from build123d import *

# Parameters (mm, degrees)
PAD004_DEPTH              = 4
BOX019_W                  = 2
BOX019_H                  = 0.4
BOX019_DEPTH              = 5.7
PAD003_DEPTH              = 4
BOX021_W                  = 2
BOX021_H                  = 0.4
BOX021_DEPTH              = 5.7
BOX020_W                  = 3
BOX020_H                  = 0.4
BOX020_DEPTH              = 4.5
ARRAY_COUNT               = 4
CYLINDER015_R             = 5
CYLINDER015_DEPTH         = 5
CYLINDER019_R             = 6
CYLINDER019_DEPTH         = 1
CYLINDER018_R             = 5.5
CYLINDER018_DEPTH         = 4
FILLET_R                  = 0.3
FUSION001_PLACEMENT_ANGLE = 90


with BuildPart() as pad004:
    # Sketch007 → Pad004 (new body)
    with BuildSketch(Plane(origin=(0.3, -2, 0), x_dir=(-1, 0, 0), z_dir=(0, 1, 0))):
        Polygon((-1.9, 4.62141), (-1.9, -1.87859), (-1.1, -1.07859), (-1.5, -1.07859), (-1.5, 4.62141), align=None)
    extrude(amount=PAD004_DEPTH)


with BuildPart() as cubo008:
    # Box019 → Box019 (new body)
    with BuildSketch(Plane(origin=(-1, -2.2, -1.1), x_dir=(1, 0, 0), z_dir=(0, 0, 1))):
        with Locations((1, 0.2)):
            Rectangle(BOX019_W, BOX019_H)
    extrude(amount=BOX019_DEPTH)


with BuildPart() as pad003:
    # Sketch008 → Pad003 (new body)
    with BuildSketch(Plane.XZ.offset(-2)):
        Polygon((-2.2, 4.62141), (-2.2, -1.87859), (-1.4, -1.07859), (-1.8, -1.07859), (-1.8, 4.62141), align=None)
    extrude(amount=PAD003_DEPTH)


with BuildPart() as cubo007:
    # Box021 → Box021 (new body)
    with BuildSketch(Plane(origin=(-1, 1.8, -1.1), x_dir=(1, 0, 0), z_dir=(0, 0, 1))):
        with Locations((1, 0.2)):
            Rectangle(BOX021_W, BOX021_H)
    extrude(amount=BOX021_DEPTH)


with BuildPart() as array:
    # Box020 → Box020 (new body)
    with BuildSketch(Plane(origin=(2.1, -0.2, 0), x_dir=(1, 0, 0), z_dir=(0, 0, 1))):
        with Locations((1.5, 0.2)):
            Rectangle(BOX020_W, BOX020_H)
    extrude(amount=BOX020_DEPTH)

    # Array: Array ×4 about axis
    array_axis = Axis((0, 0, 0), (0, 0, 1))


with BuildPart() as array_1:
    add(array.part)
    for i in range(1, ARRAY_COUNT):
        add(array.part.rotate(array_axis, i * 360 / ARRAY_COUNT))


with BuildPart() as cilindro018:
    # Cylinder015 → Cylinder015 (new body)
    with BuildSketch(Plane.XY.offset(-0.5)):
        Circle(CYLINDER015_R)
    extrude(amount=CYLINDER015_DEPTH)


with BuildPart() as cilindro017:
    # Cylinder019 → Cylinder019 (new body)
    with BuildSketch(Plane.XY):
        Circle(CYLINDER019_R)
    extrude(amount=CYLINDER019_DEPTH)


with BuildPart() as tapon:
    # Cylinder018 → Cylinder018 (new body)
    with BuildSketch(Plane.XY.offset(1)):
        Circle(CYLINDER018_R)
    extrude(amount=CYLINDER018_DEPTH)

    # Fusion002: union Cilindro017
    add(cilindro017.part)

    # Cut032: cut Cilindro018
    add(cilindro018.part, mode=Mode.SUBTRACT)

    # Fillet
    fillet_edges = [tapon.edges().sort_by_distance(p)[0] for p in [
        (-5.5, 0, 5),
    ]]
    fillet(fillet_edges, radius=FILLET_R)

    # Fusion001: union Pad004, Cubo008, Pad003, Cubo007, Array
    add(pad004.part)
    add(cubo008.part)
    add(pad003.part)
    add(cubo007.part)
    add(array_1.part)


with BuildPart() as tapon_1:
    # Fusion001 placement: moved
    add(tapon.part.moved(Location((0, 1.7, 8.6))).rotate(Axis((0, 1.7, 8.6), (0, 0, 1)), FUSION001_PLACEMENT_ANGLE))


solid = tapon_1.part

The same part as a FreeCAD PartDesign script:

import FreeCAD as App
import Part
import Sketcher
Q = App.Units.Quantity


def edges_at(feature, points):
    """Names of the edges that pass closest to the given points."""
    edges = feature.Shape.Edges
    near = lambda p: min(range(len(edges)), key=lambda i: edges[i].distToShape(Part.Vertex(*p))[0])
    return sorted({f"Edge{near(p) + 1}" for p in points})

doc = App.newDocument("Part")
body = doc.addObject("PartDesign::Body", "Body")

# Sketch on XZ plane
sketch1 = body.newObject("Sketcher::SketchObject", "Sketch")
sketch1.AttachmentSupport = (doc.getObject("XZ_Plane"), [""])
sketch1.MapMode = "FlatFace"
sketch1.AttachmentOffset = App.Placement(App.Vector(0, 0, 2), App.Rotation())
sketch1.addGeometry(Part.LineSegment(App.Vector(2.2, 4.62141, 0), App.Vector(2.2, -1.87859, 0)), False)
sketch1.addGeometry(Part.LineSegment(App.Vector(2.2, -1.87859, 0), App.Vector(1.4, -1.07859, 0)), False)
sketch1.addGeometry(Part.LineSegment(App.Vector(1.4, -1.07859, 0), App.Vector(1.8, -1.07859, 0)), False)
sketch1.addGeometry(Part.LineSegment(App.Vector(1.8, -1.07859, 0), App.Vector(1.8, 4.62141, 0)), False)
sketch1.addGeometry(Part.LineSegment(App.Vector(1.8, 4.62141, 0), App.Vector(2.2, 4.62141, 0)), False)
sketch1.addConstraint(Sketcher.Constraint("Coincident", 0, 2, 1, 1))
sketch1.addConstraint(Sketcher.Constraint("Coincident", 1, 2, 2, 1))
sketch1.addConstraint(Sketcher.Constraint("Coincident", 2, 2, 3, 1))
sketch1.addConstraint(Sketcher.Constraint("Coincident", 3, 2, 4, 1))
sketch1.addConstraint(Sketcher.Constraint("Coincident", 4, 2, 0, 1))
sketch1.addConstraint(Sketcher.Constraint("Vertical", 0))
sketch1.addConstraint(Sketcher.Constraint("Horizontal", 2))
sketch1.addConstraint(Sketcher.Constraint("Vertical", 3))
sketch1.addConstraint(Sketcher.Constraint("Horizontal", 4))
sketch1.addConstraint(Sketcher.Constraint("Equal", 2, 4))
sketch1.addConstraint(Sketcher.Constraint("Angle", 1, Q("135 deg")))
sketch1.addConstraint(Sketcher.Constraint("DistanceX", 2, 1, 2, 2, 0.4))
sketch1.addConstraint(Sketcher.Constraint("DistanceY", 0, 2, 0, 1, 6.5))
sketch1.addConstraint(Sketcher.Constraint("DistanceX", -1, 1, 0, 2, 2.2))
sketch1.addConstraint(Sketcher.Constraint("DistanceY", 0, 2, -1, 1, 1.87859))
pad1 = body.newObject("PartDesign::Pad", "Pad")
pad1.Profile = sketch1
pad1.Length = 4
pad1.Reversed = True
body2 = doc.addObject("PartDesign::Body", "Body001")

# Sketch on XY plane
sketch2 = body2.newObject("Sketcher::SketchObject", "Sketch001")
sketch2.AttachmentSupport = (doc.getObject("XY_Plane001"), [""])
sketch2.MapMode = "FlatFace"
sketch2.AttachmentOffset = App.Placement(App.Vector(0, 0, -1.1), App.Rotation())
sketch2.addGeometry(Part.LineSegment(App.Vector(-1, -1.8, 0), App.Vector(-1, -2.2, 0)), False)
sketch2.addGeometry(Part.LineSegment(App.Vector(-1, -2.2, 0), App.Vector(1, -2.2, 0)), False)
sketch2.addGeometry(Part.LineSegment(App.Vector(1, -2.2, 0), App.Vector(1, -1.8, 0)), False)
sketch2.addGeometry(Part.LineSegment(App.Vector(1, -1.8, 0), App.Vector(-1, -1.8, 0)), False)
sketch2.addConstraint(Sketcher.Constraint("Coincident", 0, 2, 1, 1))
sketch2.addConstraint(Sketcher.Constraint("Coincident", 1, 2, 2, 1))
sketch2.addConstraint(Sketcher.Constraint("Coincident", 2, 2, 3, 1))
sketch2.addConstraint(Sketcher.Constraint("Coincident", 3, 2, 0, 1))
sketch2.addConstraint(Sketcher.Constraint("Vertical", 0))
sketch2.addConstraint(Sketcher.Constraint("Horizontal", 1))
sketch2.addConstraint(Sketcher.Constraint("Vertical", 2))
sketch2.addConstraint(Sketcher.Constraint("Horizontal", 3))
sketch2.addConstraint(Sketcher.Constraint("DistanceX", 1, 1, 1, 2, 2.0))
sketch2.addConstraint(Sketcher.Constraint("DistanceY", 0, 2, 0, 1, 0.4))
sketch2.addConstraint(Sketcher.Constraint("DistanceX", 0, 2, -1, 1, 1.0))
sketch2.addConstraint(Sketcher.Constraint("DistanceY", 0, 2, -1, 1, 2.2))
pad2 = body2.newObject("PartDesign::Pad", "Pad001")
pad2.Profile = sketch2
pad2.Length = 5.7
body3 = doc.addObject("PartDesign::Body", "Body002")

# Sketch on XZ plane
sketch3 = body3.newObject("Sketcher::SketchObject", "Sketch002")
sketch3.AttachmentSupport = (doc.getObject("XZ_Plane002"), [""])
sketch3.MapMode = "FlatFace"
sketch3.AttachmentOffset = App.Placement(App.Vector(0, 0, -2), App.Rotation())
sketch3.addGeometry(Part.LineSegment(App.Vector(-2.2, 4.62141, 0), App.Vector(-2.2, -1.87859, 0)), False)
sketch3.addGeometry(Part.LineSegment(App.Vector(-2.2, -1.87859, 0), App.Vector(-1.4, -1.07859, 0)), False)
sketch3.addGeometry(Part.LineSegment(App.Vector(-1.4, -1.07859, 0), App.Vector(-1.8, -1.07859, 0)), False)
sketch3.addGeometry(Part.LineSegment(App.Vector(-1.8, -1.07859, 0), App.Vector(-1.8, 4.62141, 0)), False)
sketch3.addGeometry(Part.LineSegment(App.Vector(-1.8, 4.62141, 0), App.Vector(-2.2, 4.62141, 0)), False)
sketch3.addConstraint(Sketcher.Constraint("Coincident", 0, 2, 1, 1))
sketch3.addConstraint(Sketcher.Constraint("Coincident", 1, 2, 2, 1))
sketch3.addConstraint(Sketcher.Constraint("Coincident", 2, 2, 3, 1))
sketch3.addConstraint(Sketcher.Constraint("Coincident", 3, 2, 4, 1))
sketch3.addConstraint(Sketcher.Constraint("Coincident", 4, 2, 0, 1))
sketch3.addConstraint(Sketcher.Constraint("Vertical", 0))
sketch3.addConstraint(Sketcher.Constraint("Horizontal", 2))
sketch3.addConstraint(Sketcher.Constraint("Vertical", 3))
sketch3.addConstraint(Sketcher.Constraint("Horizontal", 4))
sketch3.addConstraint(Sketcher.Constraint("Equal", 2, 4))
sketch3.addConstraint(Sketcher.Constraint("Angle", 1, Q("45 deg")))
sketch3.addConstraint(Sketcher.Constraint("DistanceX", 2, 2, 2, 1, 0.4))
sketch3.addConstraint(Sketcher.Constraint("DistanceY", 0, 2, 0, 1, 6.5))
sketch3.addConstraint(Sketcher.Constraint("DistanceX", 0, 2, -1, 1, 2.2))
sketch3.addConstraint(Sketcher.Constraint("DistanceY", 0, 2, -1, 1, 1.87859))
pad3 = body3.newObject("PartDesign::Pad", "Pad002")
pad3.Profile = sketch3
pad3.Length = 4
body4 = doc.addObject("PartDesign::Body", "Body003")

# Sketch on XY plane
sketch4 = body4.newObject("Sketcher::SketchObject", "Sketch003")
sketch4.AttachmentSupport = (doc.getObject("XY_Plane003"), [""])
sketch4.MapMode = "FlatFace"
sketch4.AttachmentOffset = App.Placement(App.Vector(0, 0, -1.1), App.Rotation())
sketch4.addGeometry(Part.LineSegment(App.Vector(-1, 2.2, 0), App.Vector(-1, 1.8, 0)), False)
sketch4.addGeometry(Part.LineSegment(App.Vector(-1, 1.8, 0), App.Vector(1, 1.8, 0)), False)
sketch4.addGeometry(Part.LineSegment(App.Vector(1, 1.8, 0), App.Vector(1, 2.2, 0)), False)
sketch4.addGeometry(Part.LineSegment(App.Vector(1, 2.2, 0), App.Vector(-1, 2.2, 0)), False)
sketch4.addConstraint(Sketcher.Constraint("Coincident", 0, 2, 1, 1))
sketch4.addConstraint(Sketcher.Constraint("Coincident", 1, 2, 2, 1))
sketch4.addConstraint(Sketcher.Constraint("Coincident", 2, 2, 3, 1))
sketch4.addConstraint(Sketcher.Constraint("Coincident", 3, 2, 0, 1))
sketch4.addConstraint(Sketcher.Constraint("Vertical", 0))
sketch4.addConstraint(Sketcher.Constraint("Horizontal", 1))
sketch4.addConstraint(Sketcher.Constraint("Vertical", 2))
sketch4.addConstraint(Sketcher.Constraint("Horizontal", 3))
sketch4.addConstraint(Sketcher.Constraint("DistanceX", 1, 1, 1, 2, 2.0))
sketch4.addConstraint(Sketcher.Constraint("DistanceY", 0, 2, 0, 1, 0.4))
sketch4.addConstraint(Sketcher.Constraint("DistanceX", 0, 2, -1, 1, 1.0))
sketch4.addConstraint(Sketcher.Constraint("DistanceY", -1, 1, 0, 2, 1.8))
pad4 = body4.newObject("PartDesign::Pad", "Pad003")
pad4.Profile = sketch4
pad4.Length = 5.7
body5 = doc.addObject("PartDesign::Body", "Body004")

# Sketch on XY plane
sketch5 = body5.newObject("Sketcher::SketchObject", "Sketch004")
sketch5.AttachmentSupport = (doc.getObject("XY_Plane004"), [""])
sketch5.MapMode = "FlatFace"
sketch5.addGeometry(Part.LineSegment(App.Vector(2.1, 0.2, 0), App.Vector(2.1, -0.2, 0)), False)
sketch5.addGeometry(Part.LineSegment(App.Vector(2.1, -0.2, 0), App.Vector(5.1, -0.2, 0)), False)
sketch5.addGeometry(Part.LineSegment(App.Vector(5.1, -0.2, 0), App.Vector(5.1, 0.2, 0)), False)
sketch5.addGeometry(Part.LineSegment(App.Vector(5.1, 0.2, 0), App.Vector(2.1, 0.2, 0)), False)
sketch5.addConstraint(Sketcher.Constraint("Coincident", 0, 2, 1, 1))
sketch5.addConstraint(Sketcher.Constraint("Coincident", 1, 2, 2, 1))
sketch5.addConstraint(Sketcher.Constraint("Coincident", 2, 2, 3, 1))
sketch5.addConstraint(Sketcher.Constraint("Coincident", 3, 2, 0, 1))
sketch5.addConstraint(Sketcher.Constraint("Vertical", 0))
sketch5.addConstraint(Sketcher.Constraint("Horizontal", 1))
sketch5.addConstraint(Sketcher.Constraint("Vertical", 2))
sketch5.addConstraint(Sketcher.Constraint("Horizontal", 3))
sketch5.addConstraint(Sketcher.Constraint("DistanceX", 1, 1, 1, 2, 3.0))
sketch5.addConstraint(Sketcher.Constraint("DistanceY", 0, 2, 0, 1, 0.4))
sketch5.addConstraint(Sketcher.Constraint("DistanceX", -1, 1, 0, 2, 2.1))
sketch5.addConstraint(Sketcher.Constraint("DistanceY", 0, 2, -1, 1, 0.2))
pad5 = body5.newObject("PartDesign::Pad", "Pad004")
pad5.Profile = sketch5
pad5.Length = 4.5
body6 = doc.addObject("PartDesign::Body", "Body005")
body6.AllowCompound = True
doc.recompute()

body6.BaseFeature = body5
doc.recompute()

body7 = doc.addObject("PartDesign::Body", "Body006")
body7.BaseFeature = body5
body7.Placement = App.Placement(App.Vector(0, 0, 0), App.Rotation(App.Vector(0, 0, 1), 90))
boolean = body6.newObject("PartDesign::Boolean", "Boolean")
boolean.Type = "Fuse"
boolean.addObjects([body7])
doc.recompute()

body8 = doc.addObject("PartDesign::Body", "Body007")
body8.BaseFeature = body5
body8.Placement = App.Placement(App.Vector(0, 0, 0), App.Rotation(App.Vector(0, 0, 1), 180))
boolean2 = body6.newObject("PartDesign::Boolean", "Boolean001")
boolean2.Type = "Fuse"
boolean2.addObjects([body8])
doc.recompute()

body5.Placement = App.Placement(App.Vector(0, 0, 0), App.Rotation(App.Vector(0, 0, 1), 270))
boolean3 = body6.newObject("PartDesign::Boolean", "Boolean002")
boolean3.Type = "Fuse"
boolean3.addObjects([body5])
body9 = doc.addObject("PartDesign::Body", "Body008")

# Sketch on XY plane
sketch6 = body9.newObject("Sketcher::SketchObject", "Sketch005")
sketch6.AttachmentSupport = (doc.getObject("XY_Plane008"), [""])
sketch6.MapMode = "FlatFace"
sketch6.AttachmentOffset = App.Placement(App.Vector(0, 0, -0.5), App.Rotation())
sketch6.addGeometry(Part.Circle(App.Vector(0, 0, 0), App.Vector(0, 0, 1), 5), False)
sketch6.addConstraint(Sketcher.Constraint("Coincident", 0, 3, -1, 1))
sketch6.addConstraint(Sketcher.Constraint("Diameter", 0, 10.0))
pad6 = body9.newObject("PartDesign::Pad", "Pad005")
pad6.Profile = sketch6
pad6.Length = 5
body10 = doc.addObject("PartDesign::Body", "Body009")

# Sketch on XY plane
sketch7 = body10.newObject("Sketcher::SketchObject", "Sketch006")
sketch7.AttachmentSupport = (doc.getObject("XY_Plane009"), [""])
sketch7.MapMode = "FlatFace"
sketch7.addGeometry(Part.Circle(App.Vector(0, 0, 0), App.Vector(0, 0, 1), 6), False)
sketch7.addConstraint(Sketcher.Constraint("Coincident", 0, 3, -1, 1))
sketch7.addConstraint(Sketcher.Constraint("Diameter", 0, 12.0))
pad7 = body10.newObject("PartDesign::Pad", "Pad006")
pad7.Profile = sketch7
pad7.Length = 1
body11 = doc.addObject("PartDesign::Body", "Body010")

# Sketch on XY plane
sketch8 = body11.newObject("Sketcher::SketchObject", "Sketch007")
sketch8.AttachmentSupport = (doc.getObject("XY_Plane010"), [""])
sketch8.MapMode = "FlatFace"
sketch8.AttachmentOffset = App.Placement(App.Vector(0, 0, 1), App.Rotation())
sketch8.addGeometry(Part.Circle(App.Vector(0, 0, 0), App.Vector(0, 0, 1), 5.5), False)
sketch8.addConstraint(Sketcher.Constraint("Coincident", 0, 3, -1, 1))
sketch8.addConstraint(Sketcher.Constraint("Diameter", 0, 11.0))
pad8 = body11.newObject("PartDesign::Pad", "Pad007")
pad8.Profile = sketch8
pad8.Length = 4
doc.recompute()

boolean4 = body11.newObject("PartDesign::Boolean", "Boolean003")
boolean4.Type = "Fuse"
boolean4.addObjects([body10])
doc.recompute()

boolean5 = body11.newObject("PartDesign::Boolean", "Boolean004")
boolean5.Type = "Cut"
boolean5.addObjects([body9])
doc.recompute()

fillet = body11.newObject("PartDesign::Fillet", "Fillet")
fillet.Base = (boolean5, edges_at(boolean5, [(-5.5, 0, 5)]))
fillet.Radius = 0.3
doc.recompute()

boolean6 = body11.newObject("PartDesign::Boolean", "Boolean005")
boolean6.Type = "Fuse"
boolean6.addObjects([body])
doc.recompute()

boolean7 = body11.newObject("PartDesign::Boolean", "Boolean006")
boolean7.Type = "Fuse"
boolean7.addObjects([body2])
doc.recompute()

boolean8 = body11.newObject("PartDesign::Boolean", "Boolean007")
boolean8.Type = "Fuse"
boolean8.addObjects([body3])
doc.recompute()

boolean9 = body11.newObject("PartDesign::Boolean", "Boolean008")
boolean9.Type = "Fuse"
boolean9.addObjects([body4])
doc.recompute()

boolean10 = body11.newObject("PartDesign::Boolean", "Boolean009")
boolean10.Type = "Fuse"
boolean10.addObjects([body6])
body12 = doc.addObject("PartDesign::Body", "Body011")
doc.recompute()

body11.Placement = App.Placement(App.Vector(0, 1.7, 8.6), App.Rotation(App.Vector(0, 0, 1), 90))
boolean11 = body12.newObject("PartDesign::Boolean", "Boolean010")
boolean11.Type = "Fuse"
boolean11.addObjects([body11])

doc.recompute()
